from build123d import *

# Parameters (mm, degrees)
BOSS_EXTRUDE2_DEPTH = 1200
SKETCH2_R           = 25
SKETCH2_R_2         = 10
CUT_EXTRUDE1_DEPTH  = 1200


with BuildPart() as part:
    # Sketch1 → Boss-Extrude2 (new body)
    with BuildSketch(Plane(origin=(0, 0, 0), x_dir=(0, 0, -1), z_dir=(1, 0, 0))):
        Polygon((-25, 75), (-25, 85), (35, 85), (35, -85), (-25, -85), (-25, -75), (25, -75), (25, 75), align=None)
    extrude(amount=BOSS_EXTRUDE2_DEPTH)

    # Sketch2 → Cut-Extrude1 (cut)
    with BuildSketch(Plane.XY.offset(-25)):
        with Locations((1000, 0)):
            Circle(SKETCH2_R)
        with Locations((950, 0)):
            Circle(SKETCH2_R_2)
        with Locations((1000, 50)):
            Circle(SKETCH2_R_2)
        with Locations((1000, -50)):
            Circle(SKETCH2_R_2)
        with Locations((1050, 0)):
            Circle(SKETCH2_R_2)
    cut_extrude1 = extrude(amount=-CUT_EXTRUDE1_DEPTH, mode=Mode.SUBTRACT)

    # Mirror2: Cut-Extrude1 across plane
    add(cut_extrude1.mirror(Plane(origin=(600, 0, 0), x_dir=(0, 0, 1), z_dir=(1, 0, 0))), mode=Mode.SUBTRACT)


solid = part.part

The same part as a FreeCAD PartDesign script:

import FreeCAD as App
import Part
import Sketcher

V = App.Vector


def add_polygon(sketch, points):
    """Adds a closed chain of lines whose ends are joined by coincident constraints."""
    first, n = sketch.GeometryCount, len(points)
    for a, b in zip(points, points[1:] + points[:1]):
        sketch.addGeometry(Part.LineSegment(App.Vector(*a, 0), App.Vector(*b, 0)), False)
    for i in range(n):
        sketch.addConstraint(Sketcher.Constraint("Coincident", first + i, 2, first + (i + 1) % n, 1))

doc = App.newDocument("Part")
body = doc.addObject("PartDesign::Body", "Body")

sketch1 = body.newObject("Sketcher::SketchObject", "Sketch")
sketch1.AttachmentSupport = (doc.getObject("YZ_Plane"), [""])
sketch1.MapMode = "FlatFace"
add_polygon(sketch1, [(85, 25), (75, 25), (75, -25), (-75, -25), (-75, 25), (-85, 25), (-85, -35), (85, -35)])
sketch1.addConstraint([
    Sketcher.Constraint("Horizontal", 0),
    Sketcher.Constraint("Vertical", 1),
    Sketcher.Constraint("Horizontal", 2),
    Sketcher.Constraint("Vertical", 3),
    Sketcher.Constraint("Horizontal", 4),
    Sketcher.Constraint("Vertical", 5),
    Sketcher.Constraint("Horizontal", 6),
    Sketcher.Constraint("Vertical", 7),
    Sketcher.Constraint("Symmetric", 0, 2, 2, 2, -1, 1),
    Sketcher.Constraint("Symmetric", 4, 2, 7, 2, -2),
    Sketcher.Constraint("DistanceX", 0, 2, 0, 1, 10.0),
    Sketcher.Constraint("DistanceX", 2, 2, 2, 1, 150.0),
    Sketcher.Constraint("DistanceY", 1, 2, 1, 1, 50.0),
    Sketcher.Constraint("DistanceY", 5, 2, 5, 1, 60.0),
])
pad1 = body.newObject("PartDesign::Pad", "Pad")
pad1.Profile = sketch1
pad1.Length = 1200

sketch2 = body.newObject("Sketcher::SketchObject", "Sketch001")
sketch2.AttachmentSupport = (doc.getObject("XY_Plane"), [""])
sketch2.MapMode = "FlatFace"
sketch2.AttachmentOffset = App.Placement(V(0, 0, -25), App.Rotation())
sketch2.addGeometry([
    Part.Circle(V(1000, 0, 0), V(0, 0, 1), 25),
    Part.Circle(V(950, 0, 0), V(0, 0, 1), 10),
    Part.Circle(V(1000, 50, 0), V(0, 0, 1), 10),
    Part.Circle(V(1000, -50, 0), V(0, 0, 1), 10),
    Part.Circle(V(1050, 0, 0), V(0, 0, 1), 10),
], False)
sketch2.addConstraint([
    Sketcher.Constraint("Equal", 1, 2),
    Sketcher.Constraint("Equal", 2, 3),
    Sketcher.Constraint("Equal", 3, 4),
    Sketcher.Constraint("Symmetric", 2, 3, 3, 3, -1),
    Sketcher.Constraint("PointOnObject", 0, 3, -1),
    Sketcher.Constraint("PointOnObject", 1, 3, -1),
    Sketcher.Constraint("PointOnObject", 4, 3, -1),
    Sketcher.Constraint("Vertical", 0, 3, 2, 3),
    Sketcher.Constraint("Diameter", 0, 50.0),
    Sketcher.Constraint("Diameter", 1, 20.0),
    Sketcher.Constraint("DistanceX", -1, 1, 0, 3, 1000.0),
    Sketcher.Constraint("DistanceX", -1, 1, 1, 3, 950.0),
    Sketcher.Constraint("DistanceY", -1, 1, 2, 3, 50.0),
    Sketcher.Constraint("DistanceX", -1, 1, 4, 3, 1050.0),
])
pocket1 = body.newObject("PartDesign::Pocket", "Pocket")
pocket1.Profile = sketch2
pocket1.Length = 1200
doc.recompute()

datumplane = body.newObject("PartDesign::Plane", "DatumPlane")
datumplane.AttachmentSupport = (doc.getObject("YZ_Plane"), [""])
datumplane.MapMode = "FlatFace"
datumplane.AttachmentOffset = App.Placement(V(0, 0, 600), App.Rotation())
mirrored = body.newObject("PartDesign::Mirrored", "Mirrored")
mirrored.Originals = [pocket1]
mirrored.MirrorPlane = (datumplane, [""])
body.Tip = mirrored

doc.recompute()
